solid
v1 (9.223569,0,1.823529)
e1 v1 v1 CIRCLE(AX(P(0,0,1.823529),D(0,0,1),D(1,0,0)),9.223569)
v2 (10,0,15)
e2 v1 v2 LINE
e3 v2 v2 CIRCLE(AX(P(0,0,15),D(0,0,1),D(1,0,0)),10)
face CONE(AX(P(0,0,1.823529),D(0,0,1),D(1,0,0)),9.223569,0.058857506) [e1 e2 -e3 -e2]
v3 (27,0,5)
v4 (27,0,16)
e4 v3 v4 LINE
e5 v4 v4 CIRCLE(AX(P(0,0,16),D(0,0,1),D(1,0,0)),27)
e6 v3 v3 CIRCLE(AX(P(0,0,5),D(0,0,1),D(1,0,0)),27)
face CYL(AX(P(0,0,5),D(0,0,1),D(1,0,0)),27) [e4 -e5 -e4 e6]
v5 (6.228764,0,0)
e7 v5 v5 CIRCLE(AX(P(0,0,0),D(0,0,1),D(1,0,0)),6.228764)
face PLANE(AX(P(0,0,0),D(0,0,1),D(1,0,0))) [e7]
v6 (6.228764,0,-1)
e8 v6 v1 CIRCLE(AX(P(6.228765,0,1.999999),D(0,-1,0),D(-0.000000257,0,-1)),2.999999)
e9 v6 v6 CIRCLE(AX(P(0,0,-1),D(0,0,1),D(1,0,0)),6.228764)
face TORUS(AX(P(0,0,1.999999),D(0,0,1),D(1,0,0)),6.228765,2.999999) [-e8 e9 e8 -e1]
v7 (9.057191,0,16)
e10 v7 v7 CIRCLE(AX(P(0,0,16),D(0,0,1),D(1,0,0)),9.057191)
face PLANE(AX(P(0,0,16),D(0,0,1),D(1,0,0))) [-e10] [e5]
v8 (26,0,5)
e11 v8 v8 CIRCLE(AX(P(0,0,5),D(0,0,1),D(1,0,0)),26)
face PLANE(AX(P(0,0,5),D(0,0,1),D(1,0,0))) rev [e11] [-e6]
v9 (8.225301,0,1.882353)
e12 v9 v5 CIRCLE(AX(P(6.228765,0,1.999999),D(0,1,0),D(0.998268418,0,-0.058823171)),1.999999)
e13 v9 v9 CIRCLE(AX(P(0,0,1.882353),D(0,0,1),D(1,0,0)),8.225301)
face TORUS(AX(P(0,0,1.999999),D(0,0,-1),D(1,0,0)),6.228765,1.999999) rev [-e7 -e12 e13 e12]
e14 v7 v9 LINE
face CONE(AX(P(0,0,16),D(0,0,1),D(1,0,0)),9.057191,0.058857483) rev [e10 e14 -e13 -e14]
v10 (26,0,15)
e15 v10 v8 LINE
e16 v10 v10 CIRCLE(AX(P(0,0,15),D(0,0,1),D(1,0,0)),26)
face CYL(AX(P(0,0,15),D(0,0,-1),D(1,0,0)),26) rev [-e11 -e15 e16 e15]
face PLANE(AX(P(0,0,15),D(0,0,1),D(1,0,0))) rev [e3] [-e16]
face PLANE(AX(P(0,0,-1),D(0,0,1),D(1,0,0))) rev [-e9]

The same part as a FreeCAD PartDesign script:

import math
import FreeCAD as App
import Part
import Sketcher

doc = App.newDocument("Part")
body = doc.addObject("PartDesign::Body", "Body")

# Sketch on XZ plane
sketch1 = body.newObject("Sketcher::SketchObject", "Sketch")
sketch1.AttachmentSupport = (doc.getObject("XZ_Plane"), [""])
sketch1.MapMode = "FlatFace"
sketch1.addGeometry(Part.LineSegment(App.Vector(6.2, 0, 0), App.Vector(0, 0, 0)), False)
sketch1.addGeometry(Part.LineSegment(App.Vector(0, 0, 0), App.Vector(0, -1, 0)), False)
sketch1.addGeometry(Part.LineSegment(App.Vector(0, -1, 0), App.Vector(6.2, -1, 0)), False)
sketch1.addGeometry(Part.ArcOfCircle(Part.Circle(App.Vector(6.2, 2, 0), App.Vector(0, 0, 1), 3), math.radians(-90), math.radians(-3)), False)
sketch1.addGeometry(Part.LineSegment(App.Vector(9.2, 1.8, 0), App.Vector(10, 15, 0)), False)
sketch1.addGeometry(Part.LineSegment(App.Vector(10, 15, 0), App.Vector(26, 15, 0)), False)
sketch1.addGeometry(Part.LineSegment(App.Vector(26, 15, 0), App.Vector(26, 5, 0)), False)
sketch1.addGeometry(Part.LineSegment(App.Vector(26, 5, 0), App.Vector(27, 5, 0)), False)
sketch1.addGeometry(Part.LineSegment(App.Vector(27, 5, 0), App.Vector(27, 16, 0)), False)
sketch1.addGeometry(Part.LineSegment(App.Vector(27, 16, 0), App.Vector(9.1, 16, 0)), False)
sketch1.addGeometry(Part.LineSegment(App.Vector(9.1, 16, 0), App.Vector(8.2, 1.9, 0)), False)
sketch1.addGeometry(Part.ArcOfCircle(Part.Circle(App.Vector(6.2, 2, 0), App.Vector(0, 0, 1), 2), math.radians(-90), math.radians(-3)), False)
sketch1.addConstraint(Sketcher.Constraint("Coincident", 0, 2, 1, 1))
sketch1.addConstraint(Sketcher.Constraint("Coincident", 1, 2, 2, 1))
sketch1.addConstraint(Sketcher.Constraint("Tangent", 2, 2, 3, 1))
sketch1.addConstraint(Sketcher.Constraint("Tangent", 3, 2, 4, 1))
sketch1.addConstraint(Sketcher.Constraint("Coincident", 4, 2, 5, 1))
sketch1.addConstraint(Sketcher.Constraint("Coincident", 5, 2, 6, 1))
sketch1.addConstraint(Sketcher.Constraint("Coincident", 6, 2, 7, 1))
sketch1.addConstraint(Sketcher.Constraint("Coincident", 7, 2, 8, 1))
sketch1.addConstraint(Sketcher.Constraint("Coincident", 8, 2, 9, 1))
sketch1.addConstraint(Sketcher.Constraint("Coincident", 9, 2, 10, 1))
sketch1.addConstraint(Sketcher.Constraint("Tangent", 10, 2, 11, 2))
sketch1.addConstraint(Sketcher.Constraint("Tangent", 11, 1, 0, 1))
sketch1.addConstraint(Sketcher.Constraint("Horizontal", 0))
sketch1.addConstraint(Sketcher.Constraint("Vertical", 1))
sketch1.addConstraint(Sketcher.Constraint("Horizontal", 2))
sketch1.addConstraint(Sketcher.Constraint("Horizontal", 5))
sketch1.addConstraint(Sketcher.Constraint("Vertical", 6))
sketch1.addConstraint(Sketcher.Constraint("Horizontal", 7))
sketch1.addConstraint(Sketcher.Constraint("Vertical", 8))
sketch1.addConstraint(Sketcher.Constraint("Horizontal", 9))
sketch1.addConstraint(Sketcher.Constraint("Coincident", 0, 2, -1, 1))
sketch1.addConstraint(Sketcher.Constraint("Coincident", 11, 3, 3, 3))
sketch1.addConstraint(Sketcher.Constraint("Parallel", 4, 10))
sketch1.addConstraint(Sketcher.Constraint("Equal", 7, 1))
sketch1.addConstraint(Sketcher.Constraint("Radius", 3, 2.999999))
sketch1.addConstraint(Sketcher.Constraint("Radius", 11, 1.999999))
sketch1.addConstraint(Sketcher.Constraint("DistanceX", 5, 1, 5, 2, 16.0))
sketch1.addConstraint(Sketcher.Constraint("DistanceY", 6, 2, 6, 1, 10.0))
sketch1.addConstraint(Sketcher.Constraint("DistanceY", 8, 1, 8, 2, 11.0))
sketch1.addConstraint(Sketcher.Constraint("DistanceX", -1, 1, 4, 2, 10.0))
sketch1.addConstraint(Sketcher.Constraint("DistanceY", -1, 1, 4, 2, 15.0))
sketch1.addConstraint(Sketcher.Constraint("DistanceX", 9, 2, 9, 1, 17.942809))
revolution = body.newObject("PartDesign::Revolution", "Revolution")
revolution.Profile = sketch1
revolution.ReferenceAxis = (sketch1, ["V_Axis"])
revolution.Angle = 360

doc.recompute()
